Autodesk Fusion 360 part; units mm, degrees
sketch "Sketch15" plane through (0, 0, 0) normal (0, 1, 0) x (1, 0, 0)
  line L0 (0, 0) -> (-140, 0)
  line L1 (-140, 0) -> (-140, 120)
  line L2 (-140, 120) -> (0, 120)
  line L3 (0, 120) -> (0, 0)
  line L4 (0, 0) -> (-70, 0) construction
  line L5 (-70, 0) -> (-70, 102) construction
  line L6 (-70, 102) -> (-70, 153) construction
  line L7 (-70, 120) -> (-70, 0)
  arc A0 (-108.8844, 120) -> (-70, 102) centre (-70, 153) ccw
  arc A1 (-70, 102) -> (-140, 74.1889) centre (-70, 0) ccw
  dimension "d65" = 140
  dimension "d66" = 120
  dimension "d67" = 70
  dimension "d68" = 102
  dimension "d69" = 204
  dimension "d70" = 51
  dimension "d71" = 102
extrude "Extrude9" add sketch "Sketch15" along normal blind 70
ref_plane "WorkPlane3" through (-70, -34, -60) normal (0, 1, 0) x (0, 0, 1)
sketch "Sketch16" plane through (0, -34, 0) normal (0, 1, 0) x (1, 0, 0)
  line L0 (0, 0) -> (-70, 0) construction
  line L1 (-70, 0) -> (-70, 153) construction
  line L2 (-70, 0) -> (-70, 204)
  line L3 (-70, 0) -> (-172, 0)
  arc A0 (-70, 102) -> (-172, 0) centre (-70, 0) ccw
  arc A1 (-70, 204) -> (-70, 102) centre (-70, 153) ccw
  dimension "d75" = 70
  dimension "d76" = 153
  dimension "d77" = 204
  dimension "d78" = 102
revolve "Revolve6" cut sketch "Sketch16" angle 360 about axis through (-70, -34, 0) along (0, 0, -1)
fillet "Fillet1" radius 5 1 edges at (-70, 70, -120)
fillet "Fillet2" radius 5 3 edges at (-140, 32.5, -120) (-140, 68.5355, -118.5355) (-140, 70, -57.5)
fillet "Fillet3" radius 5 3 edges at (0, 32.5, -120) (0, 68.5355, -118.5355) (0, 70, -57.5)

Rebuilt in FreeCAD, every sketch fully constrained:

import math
import FreeCAD as App
import Part
import Sketcher
from FreeCAD import Vector


def edges_at(feature, points):
    """Names of the edges that pass closest to the given points."""
    edges = feature.Shape.Edges
    near = lambda p: min(range(len(edges)), key=lambda i: edges[i].distToShape(Part.Vertex(*p))[0])
    return sorted({f"Edge{near(p) + 1}" for p in points})

doc = App.newDocument("Part")
body = doc.addObject("PartDesign::Body", "Body")

# Sketch on XZ plane
sketch1 = body.newObject("Sketcher::SketchObject", "Sketch")
sketch1.AttachmentSupport = (doc.getObject("XZ_Plane"), [""])
sketch1.MapMode = "FlatFace"
sketch1.addGeometry([
    Part.LineSegment(Vector(0, 0, 0), Vector(0, -120, 0)),
    Part.LineSegment(Vector(0, -120, 0), Vector(-140, -120, 0)),
    Part.LineSegment(Vector(-140, -120, 0), Vector(-140, 0, 0)),
    Part.LineSegment(Vector(-140, 0, 0), Vector(0, 0, 0)),
], False)
sketch1.addConstraint([
    Sketcher.Constraint("Coincident", 0, 2, 1, 1),
    Sketcher.Constraint("Coincident", 1, 2, 2, 1),
    Sketcher.Constraint("Coincident", 2, 2, 3, 1),
    Sketcher.Constraint("Coincident", 3, 2, 0, 1),
    Sketcher.Constraint("Vertical", 0),
    Sketcher.Constraint("Horizontal", 1),
    Sketcher.Constraint("Vertical", 2),
    Sketcher.Constraint("Horizontal", 3),
    Sketcher.Constraint("Coincident", 3, 2, -1, 1),
    Sketcher.Constraint("DistanceX", 1, 2, 1, 1, 140.0),
    Sketcher.Constraint("DistanceY", 0, 2, 0, 1, 120.0),
])
pad1 = body.newObject("PartDesign::Pad", "Pad")
pad1.Profile = sketch1
pad1.Length = 70
pad1.Reversed = True

# Sketch on XZ plane
sketch2 = body.newObject("Sketcher::SketchObject", "Sketch001")
sketch2.AttachmentSupport = (doc.getObject("XZ_Plane"), [""])
sketch2.MapMode = "FlatFace"
sketch2.AttachmentOffset = App.Placement(Vector(0, 0, 34), App.Rotation())
sketch2.addGeometry([
    Part.LineSegment(Vector(-172, 0, 0), Vector(-70, 0, 0)),  # 0
    Part.LineSegment(Vector(-70, 0, 0), Vector(-70, -102, 0)),  # 1
    Part.ArcOfCircle(Part.Circle(Vector(-70, 0, 0), Vector(0, 0, 1), 102), math.radians(180), math.radians(270)),  # 2
    Part.ArcOfCircle(Part.Circle(Vector(-70, -153, 0), Vector(0, 0, 1), 51), math.radians(90), math.radians(270)),  # 3
    Part.LineSegment(Vector(-70, -102, 0), Vector(-70, -204, 0)),  # 4
], False)
sketch2.addGeometry(Part.LineSegment(Vector(-70, 0, 0), Vector(-70, -204, 0)), True)  # axis
sketch2.addConstraint([
    Sketcher.Constraint("Coincident", 0, 2, 1, 1),
    Sketcher.Constraint("Coincident", 1, 2, 2, 2),
    Sketcher.Constraint("Coincident", 2, 1, 0, 1),
    Sketcher.Constraint("Coincident", 3, 1, 4, 1),
    Sketcher.Constraint("Coincident", 4, 2, 3, 2),
    Sketcher.Constraint("Horizontal", 0),
    Sketcher.Constraint("Vertical", 1),
    Sketcher.Constraint("Vertical", 4),
    Sketcher.Constraint("Vertical", 5),
    Sketcher.Constraint("Coincident", 0, 2, 2, 3),
    Sketcher.Constraint("Coincident", 3, 1, 1, 2),
    Sketcher.Constraint("Coincident", 5, 1, 2, 3),
    Sketcher.Constraint("PointOnObject", 2, 3, -1),
    Sketcher.Constraint("Vertical", 2, 3, 3, 3),
    Sketcher.Constraint("Equal", 1, 4),
    Sketcher.Constraint("Radius", 2, 102.0),
    Sketcher.Constraint("DistanceY", 5, 2, 5, 1, 204.0),
    Sketcher.Constraint("DistanceX", 2, 3, -1, 1, 70.0),
])
groove = body.newObject("PartDesign::Groove", "Groove")
groove.Profile = sketch2
groove.ReferenceAxis = (sketch2, ["Axis0"])
groove.Angle = 360
doc.recompute()

fillet = body.newObject("PartDesign::Fillet", "Fillet")
fillet.Base = (groove, edges_at(groove, [(-70, 70, -120)]))
fillet.Radius = 5
doc.recompute()

fillet2 = body.newObject("PartDesign::Fillet", "Fillet001")
fillet2.Base = (fillet, edges_at(fillet, [(-140, 32.5, -120), (-140, 68.535, -118.535), (-140, 70, -57.5)]))
fillet2.Radius = 5
doc.recompute()

fillet3 = body.newObject("PartDesign::Fillet", "Fillet002")
fillet3.Base = (fillet2, edges_at(fillet2, [(0, 32.5, -120), (0, 68.535, -118.535), (0, 70, -57.5)]))
fillet3.Radius = 5

doc.recompute()
